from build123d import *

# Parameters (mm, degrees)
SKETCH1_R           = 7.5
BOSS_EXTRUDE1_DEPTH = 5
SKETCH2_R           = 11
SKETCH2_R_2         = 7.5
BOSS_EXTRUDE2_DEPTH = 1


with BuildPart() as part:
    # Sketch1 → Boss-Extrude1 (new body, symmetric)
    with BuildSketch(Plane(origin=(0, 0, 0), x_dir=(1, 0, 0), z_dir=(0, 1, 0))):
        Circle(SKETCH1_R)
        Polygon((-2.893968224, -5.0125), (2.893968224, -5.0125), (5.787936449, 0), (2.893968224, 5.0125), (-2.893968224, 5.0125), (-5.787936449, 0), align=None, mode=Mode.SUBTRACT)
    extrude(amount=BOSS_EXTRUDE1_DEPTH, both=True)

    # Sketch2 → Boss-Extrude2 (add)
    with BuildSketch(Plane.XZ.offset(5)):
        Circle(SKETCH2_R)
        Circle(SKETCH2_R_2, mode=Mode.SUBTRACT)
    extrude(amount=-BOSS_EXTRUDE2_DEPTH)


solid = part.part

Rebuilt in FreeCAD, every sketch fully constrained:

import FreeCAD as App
import Part
import Sketcher
from FreeCAD import Vector
Q = App.Units.Quantity

doc = App.newDocument("Part")
body = doc.addObject("PartDesign::Body", "Body")

sketch1 = body.newObject("Sketcher::SketchObject", "Sketch")
sketch1.AttachmentSupport = (doc.getObject("XZ_Plane"), [""])
sketch1.MapMode = "FlatFace"
sketch1.addGeometry([
    Part.Circle(Vector(0, 0, 0), Vector(0, 0, 1), 8),
    Part.LineSegment(Vector(3, 5, 0), Vector(-3, 5, 0)),
    Part.LineSegment(Vector(-3, 5, 0), Vector(-6, 0, 0)),
    Part.LineSegment(Vector(-6, 0, 0), Vector(-3, -5, 0)),
    Part.LineSegment(Vector(-3, -5, 0), Vector(3, -5, 0)),
    Part.LineSegment(Vector(3, -5, 0), Vector(6, 0, 0)),
    Part.LineSegment(Vector(6, 0, 0), Vector(3, 5, 0)),
], False)
sketch1.addConstraint([
    Sketcher.Constraint("Coincident", 1, 2, 2, 1),
    Sketcher.Constraint("Coincident", 2, 2, 3, 1),
    Sketcher.Constraint("Coincident", 3, 2, 4, 1),
    Sketcher.Constraint("Coincident", 4, 2, 5, 1),
    Sketcher.Constraint("Coincident", 5, 2, 6, 1),
    Sketcher.Constraint("Coincident", 6, 2, 1, 1),
    Sketcher.Constraint("Horizontal", 1),
    Sketcher.Constraint("Horizontal", 4),
    Sketcher.Constraint("Coincident", 0, 3, -1, 1),
    Sketcher.Constraint("Symmetric", 1, 2, 4, 2, -1, 1),
    Sketcher.Constraint("Symmetric", 2, 2, 5, 2, -1, 1),
    Sketcher.Constraint("PointOnObject", 2, 2, -1),
    Sketcher.Constraint("Parallel", 3, 6),
    Sketcher.Constraint("Vertical", 1, 2, 3, 2),
    Sketcher.Constraint("Diameter", 0, Q("15 mm")),
    Sketcher.Constraint("Angle", 2, Q("-120 deg")),
    Sketcher.Constraint("DistanceY", 3, 2, 1, 2, Q("10.025 mm")),
    Sketcher.Constraint("DistanceX", 1, 2, 1, 1, Q("5.787936 mm")),
])
pad1 = body.newObject("PartDesign::Pad", "Pad")
pad1.Profile = sketch1
pad1.Length = 10
pad1.Midplane = True

sketch2 = body.newObject("Sketcher::SketchObject", "Sketch001")
sketch2.AttachmentSupport = (doc.getObject("XZ_Plane"), [""])
sketch2.MapMode = "FlatFace"
sketch2.AttachmentOffset = App.Placement(Vector(0, 0, 5), App.Rotation())
sketch2.addGeometry([
    Part.Circle(Vector(0, 0, 0), Vector(0, 0, 1), 11),
    Part.Circle(Vector(0, 0, 0), Vector(0, 0, 1), 8),
], False)
sketch2.addConstraint([
    Sketcher.Constraint("Coincident", 0, 3, -1, 1),
    Sketcher.Constraint("Coincident", 1, 3, -1, 1),
    Sketcher.Constraint("Diameter", 0, Q("22 mm")),
    Sketcher.Constraint("Diameter", 1, Q("15 mm")),
])
pad2 = body.newObject("PartDesign::Pad", "Pad001")
pad2.Profile = sketch2
pad2.Length = 1
pad2.Reversed = True

doc.recompute()
